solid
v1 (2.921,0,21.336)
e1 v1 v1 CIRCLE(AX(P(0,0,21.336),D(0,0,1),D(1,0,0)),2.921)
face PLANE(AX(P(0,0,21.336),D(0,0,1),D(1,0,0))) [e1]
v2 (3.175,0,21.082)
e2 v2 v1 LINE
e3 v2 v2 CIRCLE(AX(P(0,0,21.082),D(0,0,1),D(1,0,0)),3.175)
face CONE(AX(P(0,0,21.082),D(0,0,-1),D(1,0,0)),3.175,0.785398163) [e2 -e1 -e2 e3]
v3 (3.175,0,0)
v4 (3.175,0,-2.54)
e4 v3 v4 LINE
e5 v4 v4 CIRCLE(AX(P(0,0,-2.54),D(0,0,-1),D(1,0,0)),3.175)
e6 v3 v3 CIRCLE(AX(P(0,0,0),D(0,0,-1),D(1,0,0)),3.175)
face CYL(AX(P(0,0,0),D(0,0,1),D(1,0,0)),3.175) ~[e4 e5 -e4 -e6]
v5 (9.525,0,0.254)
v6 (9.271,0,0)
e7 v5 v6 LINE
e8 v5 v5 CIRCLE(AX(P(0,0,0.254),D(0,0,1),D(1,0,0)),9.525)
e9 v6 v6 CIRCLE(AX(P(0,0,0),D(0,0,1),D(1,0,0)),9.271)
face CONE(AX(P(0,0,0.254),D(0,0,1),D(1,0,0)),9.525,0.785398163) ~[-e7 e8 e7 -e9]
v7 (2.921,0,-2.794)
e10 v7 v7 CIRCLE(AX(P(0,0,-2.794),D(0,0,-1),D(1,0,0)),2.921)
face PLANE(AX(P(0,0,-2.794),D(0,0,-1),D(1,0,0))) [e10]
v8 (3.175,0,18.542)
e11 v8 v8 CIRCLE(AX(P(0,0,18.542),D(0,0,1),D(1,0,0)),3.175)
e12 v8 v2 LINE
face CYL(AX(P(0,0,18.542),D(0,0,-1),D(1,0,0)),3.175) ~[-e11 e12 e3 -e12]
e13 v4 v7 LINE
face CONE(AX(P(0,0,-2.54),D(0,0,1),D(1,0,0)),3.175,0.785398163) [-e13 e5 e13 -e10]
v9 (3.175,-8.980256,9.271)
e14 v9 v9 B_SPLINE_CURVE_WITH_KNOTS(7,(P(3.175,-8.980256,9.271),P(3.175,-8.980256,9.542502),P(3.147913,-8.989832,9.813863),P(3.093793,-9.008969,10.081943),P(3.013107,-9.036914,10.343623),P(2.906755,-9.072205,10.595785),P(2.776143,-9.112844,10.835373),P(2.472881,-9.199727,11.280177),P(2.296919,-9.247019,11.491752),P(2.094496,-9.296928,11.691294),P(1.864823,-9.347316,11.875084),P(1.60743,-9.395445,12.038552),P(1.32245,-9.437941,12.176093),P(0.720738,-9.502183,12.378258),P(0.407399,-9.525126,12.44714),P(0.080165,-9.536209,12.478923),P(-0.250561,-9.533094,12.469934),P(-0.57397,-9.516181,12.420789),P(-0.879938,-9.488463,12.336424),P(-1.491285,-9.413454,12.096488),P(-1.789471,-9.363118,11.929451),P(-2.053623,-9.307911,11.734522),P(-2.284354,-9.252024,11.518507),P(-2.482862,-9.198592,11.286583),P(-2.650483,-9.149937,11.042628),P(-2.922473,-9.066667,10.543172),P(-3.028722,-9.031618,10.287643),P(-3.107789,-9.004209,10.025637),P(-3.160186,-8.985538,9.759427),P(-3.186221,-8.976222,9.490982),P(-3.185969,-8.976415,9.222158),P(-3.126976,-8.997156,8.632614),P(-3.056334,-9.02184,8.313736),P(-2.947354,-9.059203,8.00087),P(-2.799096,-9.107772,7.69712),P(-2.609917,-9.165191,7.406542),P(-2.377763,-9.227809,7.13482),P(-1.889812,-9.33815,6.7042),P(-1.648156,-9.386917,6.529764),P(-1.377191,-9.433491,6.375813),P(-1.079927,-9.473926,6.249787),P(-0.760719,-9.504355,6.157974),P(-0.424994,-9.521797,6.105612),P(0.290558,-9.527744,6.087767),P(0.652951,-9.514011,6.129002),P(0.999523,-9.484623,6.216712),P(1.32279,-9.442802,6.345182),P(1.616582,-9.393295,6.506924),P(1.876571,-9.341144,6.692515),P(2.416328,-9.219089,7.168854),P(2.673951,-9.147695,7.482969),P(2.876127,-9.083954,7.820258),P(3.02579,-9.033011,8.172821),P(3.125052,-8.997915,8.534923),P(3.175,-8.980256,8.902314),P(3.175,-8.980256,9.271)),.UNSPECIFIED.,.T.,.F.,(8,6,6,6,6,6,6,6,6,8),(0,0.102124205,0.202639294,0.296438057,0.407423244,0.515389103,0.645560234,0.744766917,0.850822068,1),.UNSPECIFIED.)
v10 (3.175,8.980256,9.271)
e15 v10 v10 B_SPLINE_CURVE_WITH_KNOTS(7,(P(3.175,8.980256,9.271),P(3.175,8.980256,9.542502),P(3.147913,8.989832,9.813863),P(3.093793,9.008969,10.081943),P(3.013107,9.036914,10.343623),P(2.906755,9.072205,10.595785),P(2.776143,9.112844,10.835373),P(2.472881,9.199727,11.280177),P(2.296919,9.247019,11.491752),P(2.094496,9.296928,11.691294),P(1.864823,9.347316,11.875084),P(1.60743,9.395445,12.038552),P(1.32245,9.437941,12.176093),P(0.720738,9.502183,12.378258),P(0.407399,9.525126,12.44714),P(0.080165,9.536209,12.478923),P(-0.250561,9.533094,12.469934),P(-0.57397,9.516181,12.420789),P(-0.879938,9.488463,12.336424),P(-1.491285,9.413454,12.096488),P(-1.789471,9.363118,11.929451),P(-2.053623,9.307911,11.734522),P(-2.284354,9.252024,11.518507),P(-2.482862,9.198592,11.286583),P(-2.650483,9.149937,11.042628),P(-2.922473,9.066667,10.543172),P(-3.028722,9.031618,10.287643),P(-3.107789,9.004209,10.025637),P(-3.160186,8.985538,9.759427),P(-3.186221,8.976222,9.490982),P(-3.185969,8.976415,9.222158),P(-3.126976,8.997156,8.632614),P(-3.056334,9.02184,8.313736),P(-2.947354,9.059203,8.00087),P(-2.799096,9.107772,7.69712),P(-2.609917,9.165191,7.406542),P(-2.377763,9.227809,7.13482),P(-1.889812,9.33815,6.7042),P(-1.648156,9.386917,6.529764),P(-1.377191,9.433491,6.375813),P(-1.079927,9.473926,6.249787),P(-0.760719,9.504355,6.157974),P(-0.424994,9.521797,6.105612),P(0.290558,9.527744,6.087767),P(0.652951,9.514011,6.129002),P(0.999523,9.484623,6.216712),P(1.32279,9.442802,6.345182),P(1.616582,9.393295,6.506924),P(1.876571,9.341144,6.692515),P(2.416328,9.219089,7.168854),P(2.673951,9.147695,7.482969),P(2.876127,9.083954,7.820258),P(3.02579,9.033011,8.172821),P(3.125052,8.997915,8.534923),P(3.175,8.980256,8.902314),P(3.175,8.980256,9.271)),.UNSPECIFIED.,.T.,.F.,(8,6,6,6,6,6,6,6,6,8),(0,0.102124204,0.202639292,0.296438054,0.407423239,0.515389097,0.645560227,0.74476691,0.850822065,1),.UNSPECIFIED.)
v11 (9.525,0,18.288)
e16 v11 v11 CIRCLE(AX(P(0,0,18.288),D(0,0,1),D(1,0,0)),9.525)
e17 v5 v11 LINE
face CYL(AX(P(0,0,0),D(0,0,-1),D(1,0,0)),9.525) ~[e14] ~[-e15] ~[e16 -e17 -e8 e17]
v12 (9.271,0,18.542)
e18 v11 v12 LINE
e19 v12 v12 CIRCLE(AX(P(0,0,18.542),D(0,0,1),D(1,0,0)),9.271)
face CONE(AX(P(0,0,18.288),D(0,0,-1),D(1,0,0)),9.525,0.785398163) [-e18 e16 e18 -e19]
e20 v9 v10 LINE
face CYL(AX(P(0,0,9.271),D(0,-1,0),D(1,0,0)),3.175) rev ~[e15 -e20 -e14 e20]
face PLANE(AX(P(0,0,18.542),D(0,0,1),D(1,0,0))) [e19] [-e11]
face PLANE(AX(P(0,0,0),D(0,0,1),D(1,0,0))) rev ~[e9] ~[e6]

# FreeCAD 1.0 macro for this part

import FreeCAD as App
import Part
import Sketcher
from FreeCAD import Vector
Q = App.Units.Quantity


def edges_at(feature, points):
    """Names of the edges that pass closest to the given points."""
    edges = feature.Shape.Edges
    near = lambda p: min(range(len(edges)), key=lambda i: edges[i].distToShape(Part.Vertex(*p))[0])
    return sorted({f"Edge{near(p) + 1}" for p in points})

doc = App.newDocument("Part")
body = doc.addObject("PartDesign::Body", "Body")

# Sketch on XY plane
sketch1 = body.newObject("Sketcher::SketchObject", "Sketch")
sketch1.AttachmentSupport = (doc.getObject("XY_Plane"), [""])
sketch1.MapMode = "FlatFace"
sketch1.addGeometry(Part.Circle(Vector(0, 0, 0), Vector(0, 0, 1), 9.525), False)
sketch1.addConstraint([
    Sketcher.Constraint("Coincident", 0, 3, -1, 1),
    Sketcher.Constraint("Diameter", 0, Q("0.75 in")),
])
pad1 = body.newObject("PartDesign::Pad", "Pad")
pad1.Profile = sketch1
pad1.Length = Q("0.73 in")

# Sketch on XY plane
sketch2 = body.newObject("Sketcher::SketchObject", "Sketch001")
sketch2.AttachmentSupport = (doc.getObject("XY_Plane"), [""])
sketch2.MapMode = "FlatFace"
sketch2.addGeometry(Part.Circle(Vector(0, 0, 0), Vector(0, 0, 1), 3.175), False)
sketch2.addConstraint([
    Sketcher.Constraint("Coincident", 0, 3, -1, 1),
    Sketcher.Constraint("Diameter", 0, Q("0.25 in")),
])
pad2 = body.newObject("PartDesign::Pad", "Pad001")
pad2.Profile = sketch2
pad2.Length = Q("0.11 in")
pad2.Reversed = True

# Sketch on XY plane
sketch3 = body.newObject("Sketcher::SketchObject", "Sketch002")
sketch3.AttachmentSupport = (doc.getObject("XY_Plane"), [""])
sketch3.MapMode = "FlatFace"
sketch3.AttachmentOffset = App.Placement(Vector(0, 0, 0.73 * 25.4), App.Rotation())
sketch3.addGeometry(Part.Circle(Vector(0, 0, 0), Vector(0, 0, 1), 3.175), False)
sketch3.addConstraint([
    Sketcher.Constraint("Coincident", 0, 3, -1, 1),
    Sketcher.Constraint("Diameter", 0, Q("0.25 in")),
])
pad3 = body.newObject("PartDesign::Pad", "Pad002")
pad3.Profile = sketch3
pad3.Length = Q("0.11 in")

# Sketch on XZ plane
sketch4 = body.newObject("Sketcher::SketchObject", "Sketch003")
sketch4.AttachmentSupport = (doc.getObject("XZ_Plane"), [""])
sketch4.MapMode = "FlatFace"
sketch4.addGeometry(Part.Circle(Vector(0, 9.271, 0), Vector(0, 0, 1), 3.175), False)
sketch4.addConstraint([
    Sketcher.Constraint("PointOnObject", 0, 3, -2),
    Sketcher.Constraint("Diameter", 0, Q("0.25 in")),
    Sketcher.Constraint("DistanceY", -1, 1, 0, 3, Q("0.365 in")),
])
pocket1 = body.newObject("PartDesign::Pocket", "Pocket")
pocket1.Profile = sketch4
pocket1.Type = "ThroughAll"
pocket1.Midplane = True
doc.recompute()

chamfer = body.newObject("PartDesign::Chamfer", "Chamfer")
chamfer.Base = (pocket1, edges_at(pocket1, [
    (-9.525, 0, 18.542),
    (-3.175, 0, -2.794),
    (-9.525, 0, 0),
    (-3.175, 0, 21.336),
]))
chamfer.Size = Q("0.01 in")

doc.recompute()
